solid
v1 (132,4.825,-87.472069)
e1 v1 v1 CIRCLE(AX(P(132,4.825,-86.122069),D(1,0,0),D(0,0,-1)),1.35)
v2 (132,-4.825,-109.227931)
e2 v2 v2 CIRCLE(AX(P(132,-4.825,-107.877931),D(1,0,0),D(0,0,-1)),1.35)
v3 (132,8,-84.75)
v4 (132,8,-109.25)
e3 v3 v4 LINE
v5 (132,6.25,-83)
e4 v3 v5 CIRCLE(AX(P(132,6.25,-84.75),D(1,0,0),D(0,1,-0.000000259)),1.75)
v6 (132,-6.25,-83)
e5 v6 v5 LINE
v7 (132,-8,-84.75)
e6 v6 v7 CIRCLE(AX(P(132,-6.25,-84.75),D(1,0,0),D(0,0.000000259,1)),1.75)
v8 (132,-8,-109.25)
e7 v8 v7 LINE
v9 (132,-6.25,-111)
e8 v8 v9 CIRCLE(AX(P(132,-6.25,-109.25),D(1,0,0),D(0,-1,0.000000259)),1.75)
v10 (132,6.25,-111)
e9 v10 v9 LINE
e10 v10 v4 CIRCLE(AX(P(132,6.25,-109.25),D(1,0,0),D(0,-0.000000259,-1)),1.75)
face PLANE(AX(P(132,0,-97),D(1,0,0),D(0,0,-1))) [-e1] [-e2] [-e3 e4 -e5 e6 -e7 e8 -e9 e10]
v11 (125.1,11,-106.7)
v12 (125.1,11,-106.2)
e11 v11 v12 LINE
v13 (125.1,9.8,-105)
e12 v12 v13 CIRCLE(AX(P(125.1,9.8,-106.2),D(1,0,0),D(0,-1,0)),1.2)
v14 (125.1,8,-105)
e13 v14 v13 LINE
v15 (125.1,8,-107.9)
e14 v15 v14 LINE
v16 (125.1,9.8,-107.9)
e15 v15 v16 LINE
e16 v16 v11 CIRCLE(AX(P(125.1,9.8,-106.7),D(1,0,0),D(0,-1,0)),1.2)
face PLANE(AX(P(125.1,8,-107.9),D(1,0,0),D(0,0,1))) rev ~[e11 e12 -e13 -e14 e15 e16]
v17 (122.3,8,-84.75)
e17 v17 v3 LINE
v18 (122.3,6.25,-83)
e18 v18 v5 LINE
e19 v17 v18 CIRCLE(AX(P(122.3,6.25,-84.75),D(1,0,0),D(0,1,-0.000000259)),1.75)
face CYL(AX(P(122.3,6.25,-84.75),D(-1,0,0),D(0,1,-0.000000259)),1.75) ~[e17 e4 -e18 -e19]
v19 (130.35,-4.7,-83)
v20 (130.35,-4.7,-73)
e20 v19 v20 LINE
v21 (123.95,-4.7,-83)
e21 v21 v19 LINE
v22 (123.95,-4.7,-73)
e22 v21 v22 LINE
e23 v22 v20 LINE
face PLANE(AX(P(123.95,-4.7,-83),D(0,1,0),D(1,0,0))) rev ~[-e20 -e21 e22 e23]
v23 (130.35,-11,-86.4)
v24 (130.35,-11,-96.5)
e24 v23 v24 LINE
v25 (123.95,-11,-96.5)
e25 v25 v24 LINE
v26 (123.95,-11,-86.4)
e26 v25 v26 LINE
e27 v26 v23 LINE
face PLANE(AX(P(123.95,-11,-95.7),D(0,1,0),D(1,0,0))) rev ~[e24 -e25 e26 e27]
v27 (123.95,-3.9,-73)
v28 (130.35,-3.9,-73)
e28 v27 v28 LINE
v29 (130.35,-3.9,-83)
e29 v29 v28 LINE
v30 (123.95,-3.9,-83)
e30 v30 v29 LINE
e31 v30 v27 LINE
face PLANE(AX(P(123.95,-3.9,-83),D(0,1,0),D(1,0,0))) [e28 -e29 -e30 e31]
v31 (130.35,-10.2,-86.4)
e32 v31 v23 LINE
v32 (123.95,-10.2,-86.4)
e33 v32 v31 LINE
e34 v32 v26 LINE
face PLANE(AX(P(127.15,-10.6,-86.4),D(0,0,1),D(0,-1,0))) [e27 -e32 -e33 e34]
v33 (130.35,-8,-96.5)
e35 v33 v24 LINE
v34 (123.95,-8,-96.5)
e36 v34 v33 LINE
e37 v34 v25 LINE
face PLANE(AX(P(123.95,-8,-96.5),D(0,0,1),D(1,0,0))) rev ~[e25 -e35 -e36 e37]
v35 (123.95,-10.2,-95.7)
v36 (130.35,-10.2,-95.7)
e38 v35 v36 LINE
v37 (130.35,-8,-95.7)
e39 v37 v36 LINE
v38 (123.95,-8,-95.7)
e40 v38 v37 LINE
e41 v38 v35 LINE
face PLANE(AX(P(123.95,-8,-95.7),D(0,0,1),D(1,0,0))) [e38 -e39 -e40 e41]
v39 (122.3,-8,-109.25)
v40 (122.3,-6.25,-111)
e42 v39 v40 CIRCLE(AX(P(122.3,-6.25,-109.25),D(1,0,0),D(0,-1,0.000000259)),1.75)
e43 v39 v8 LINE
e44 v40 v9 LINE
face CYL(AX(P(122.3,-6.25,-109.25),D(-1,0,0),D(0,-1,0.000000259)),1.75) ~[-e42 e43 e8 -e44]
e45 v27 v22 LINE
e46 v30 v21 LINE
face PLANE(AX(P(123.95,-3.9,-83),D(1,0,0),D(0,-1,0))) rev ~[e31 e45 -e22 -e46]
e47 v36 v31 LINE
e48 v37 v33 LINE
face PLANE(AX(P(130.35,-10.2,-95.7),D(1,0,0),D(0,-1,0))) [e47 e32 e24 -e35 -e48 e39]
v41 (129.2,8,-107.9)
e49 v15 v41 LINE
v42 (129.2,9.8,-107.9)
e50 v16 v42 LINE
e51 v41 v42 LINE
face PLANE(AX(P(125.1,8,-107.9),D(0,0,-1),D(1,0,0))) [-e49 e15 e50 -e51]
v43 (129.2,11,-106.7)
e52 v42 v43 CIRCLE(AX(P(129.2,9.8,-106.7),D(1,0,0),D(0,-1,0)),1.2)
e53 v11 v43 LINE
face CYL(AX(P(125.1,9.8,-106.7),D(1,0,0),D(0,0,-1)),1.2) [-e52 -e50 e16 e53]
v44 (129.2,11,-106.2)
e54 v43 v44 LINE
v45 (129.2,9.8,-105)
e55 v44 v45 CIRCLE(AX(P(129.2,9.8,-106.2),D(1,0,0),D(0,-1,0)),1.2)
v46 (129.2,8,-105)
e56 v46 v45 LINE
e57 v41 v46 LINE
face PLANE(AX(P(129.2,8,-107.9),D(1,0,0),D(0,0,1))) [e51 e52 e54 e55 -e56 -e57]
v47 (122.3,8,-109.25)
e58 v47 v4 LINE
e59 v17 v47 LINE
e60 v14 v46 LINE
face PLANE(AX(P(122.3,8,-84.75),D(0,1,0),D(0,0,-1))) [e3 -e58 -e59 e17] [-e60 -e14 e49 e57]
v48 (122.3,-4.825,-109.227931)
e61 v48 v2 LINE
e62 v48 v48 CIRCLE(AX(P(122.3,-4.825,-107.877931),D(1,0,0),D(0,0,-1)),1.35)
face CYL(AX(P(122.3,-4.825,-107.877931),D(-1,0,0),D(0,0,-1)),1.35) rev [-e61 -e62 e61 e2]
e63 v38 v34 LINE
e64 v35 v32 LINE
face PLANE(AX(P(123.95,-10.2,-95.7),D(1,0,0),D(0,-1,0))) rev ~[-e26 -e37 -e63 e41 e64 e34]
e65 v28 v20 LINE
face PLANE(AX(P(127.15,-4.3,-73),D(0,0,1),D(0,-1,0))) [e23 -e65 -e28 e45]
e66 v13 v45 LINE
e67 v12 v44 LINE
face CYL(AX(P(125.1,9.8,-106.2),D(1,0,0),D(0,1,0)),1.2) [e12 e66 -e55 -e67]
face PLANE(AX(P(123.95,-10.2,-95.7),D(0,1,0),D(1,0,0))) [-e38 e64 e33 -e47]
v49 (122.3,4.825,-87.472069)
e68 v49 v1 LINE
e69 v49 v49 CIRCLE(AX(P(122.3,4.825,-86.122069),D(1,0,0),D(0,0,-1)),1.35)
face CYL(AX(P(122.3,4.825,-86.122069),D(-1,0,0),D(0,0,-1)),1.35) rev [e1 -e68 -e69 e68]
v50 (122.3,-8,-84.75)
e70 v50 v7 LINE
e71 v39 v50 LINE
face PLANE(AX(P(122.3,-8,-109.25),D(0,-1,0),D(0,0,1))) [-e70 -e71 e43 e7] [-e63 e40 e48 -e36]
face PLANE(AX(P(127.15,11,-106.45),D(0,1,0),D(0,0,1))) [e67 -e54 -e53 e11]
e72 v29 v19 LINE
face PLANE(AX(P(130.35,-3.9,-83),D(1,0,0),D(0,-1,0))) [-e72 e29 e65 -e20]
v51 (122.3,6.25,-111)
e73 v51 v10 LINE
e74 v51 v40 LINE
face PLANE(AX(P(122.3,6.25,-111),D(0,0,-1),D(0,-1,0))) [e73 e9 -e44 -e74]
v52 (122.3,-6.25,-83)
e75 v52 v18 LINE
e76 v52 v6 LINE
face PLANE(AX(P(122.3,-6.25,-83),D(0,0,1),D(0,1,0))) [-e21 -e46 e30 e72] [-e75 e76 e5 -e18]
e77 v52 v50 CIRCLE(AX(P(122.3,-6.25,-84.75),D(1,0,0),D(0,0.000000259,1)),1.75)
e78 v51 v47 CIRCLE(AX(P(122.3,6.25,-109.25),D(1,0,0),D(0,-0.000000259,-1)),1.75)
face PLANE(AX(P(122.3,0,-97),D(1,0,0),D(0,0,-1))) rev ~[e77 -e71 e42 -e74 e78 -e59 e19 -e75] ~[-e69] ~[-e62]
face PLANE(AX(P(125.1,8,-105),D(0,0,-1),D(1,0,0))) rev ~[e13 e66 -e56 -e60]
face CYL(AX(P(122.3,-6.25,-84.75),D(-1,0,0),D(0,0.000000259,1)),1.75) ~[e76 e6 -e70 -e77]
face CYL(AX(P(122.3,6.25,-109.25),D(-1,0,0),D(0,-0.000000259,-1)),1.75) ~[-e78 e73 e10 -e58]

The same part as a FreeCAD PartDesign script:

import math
import FreeCAD as App
import Part
import Sketcher


def edges_at(feature, points):
    """Names of the edges that pass closest to the given points."""
    edges = feature.Shape.Edges
    near = lambda p: min(range(len(edges)), key=lambda i: edges[i].distToShape(Part.Vertex(*p))[0])
    return sorted({f"Edge{near(p) + 1}" for p in points})

doc = App.newDocument("Part")
body = doc.addObject("PartDesign::Body", "Body")

# Sketch on XY plane
sketch1 = body.newObject("Sketcher::SketchObject", "Sketch")
sketch1.AttachmentSupport = (doc.getObject("XY_Plane"), [""])
sketch1.MapMode = "FlatFace"
sketch1.addGeometry(Part.ArcOfCircle(Part.Circle(App.Vector(-12.3, 6.3, 0), App.Vector(0, 0, 1), 1.7), math.radians(90), math.radians(180)), False)
sketch1.addGeometry(Part.LineSegment(App.Vector(-14, 6.2, 0), App.Vector(-14, -6.2, 0)), False)
sketch1.addGeometry(Part.ArcOfCircle(Part.Circle(App.Vector(-12.3, -6.3, 0), App.Vector(0, 0, 1), 1.7), math.radians(180), math.radians(270)), False)
sketch1.addGeometry(Part.LineSegment(App.Vector(-12.2, -8, 0), App.Vector(12.2, -8, 0)), False)
sketch1.addGeometry(Part.ArcOfCircle(Part.Circle(App.Vector(12.3, -6.3, 0), App.Vector(0, 0, 1), 1.7), math.radians(-90), math.radians(0)), False)
sketch1.addGeometry(Part.LineSegment(App.Vector(14, -6.2, 0), App.Vector(14, 6.2, 0)), False)
sketch1.addGeometry(Part.ArcOfCircle(Part.Circle(App.Vector(12.3, 6.3, 0), App.Vector(0, 0, 1), 1.7), math.radians(0), math.radians(90)), False)
sketch1.addGeometry(Part.LineSegment(App.Vector(12.2, 8, 0), App.Vector(-12.2, 8, 0)), False)
sketch1.addGeometry(Part.Circle(App.Vector(10.9, -4.8, 0), App.Vector(0, 0, 1), 1.4), False)
sketch1.addGeometry(Part.Circle(App.Vector(-10.9, 4.8, 0), App.Vector(0, 0, 1), 1.4), False)
sketch1.addConstraint(Sketcher.Constraint("Tangent", 0, 2, 1, 1))
sketch1.addConstraint(Sketcher.Constraint("Tangent", 1, 2, 2, 1))
sketch1.addConstraint(Sketcher.Constraint("Tangent", 2, 2, 3, 1))
sketch1.addConstraint(Sketcher.Constraint("Tangent", 3, 2, 4, 1))
sketch1.addConstraint(Sketcher.Constraint("Tangent", 4, 2, 5, 1))
sketch1.addConstraint(Sketcher.Constraint("Tangent", 5, 2, 6, 1))
sketch1.addConstraint(Sketcher.Constraint("Tangent", 6, 2, 7, 1))
sketch1.addConstraint(Sketcher.Constraint("Tangent", 7, 2, 0, 1))
sketch1.addConstraint(Sketcher.Constraint("Vertical", 1))
sketch1.addConstraint(Sketcher.Constraint("Horizontal", 3))
sketch1.addConstraint(Sketcher.Constraint("Vertical", 5))
sketch1.addConstraint(Sketcher.Constraint("Horizontal", 7))
sketch1.addConstraint(Sketcher.Constraint("Equal", 0, 2))
sketch1.addConstraint(Sketcher.Constraint("Equal", 2, 4))
sketch1.addConstraint(Sketcher.Constraint("Equal", 4, 6))
sketch1.addConstraint(Sketcher.Constraint("Equal", 8, 9))
sketch1.addConstraint(Sketcher.Constraint("Symmetric", 0, 3, 4, 3, -1, 1))
sketch1.addConstraint(Sketcher.Constraint("Symmetric", 8, 3, 9, 3, -1, 1))
sketch1.addConstraint(Sketcher.Constraint("Diameter", 8, 2.7))
sketch1.addConstraint(Sketcher.Constraint("Radius", 0, 1.75))
sketch1.addConstraint(Sketcher.Constraint("DistanceX", 3, 1, 3, 2, 24.5))
sketch1.addConstraint(Sketcher.Constraint("DistanceY", 1, 2, 1, 1, 12.5))
sketch1.addConstraint(Sketcher.Constraint("DistanceY", 8, 3, 9, 3, 9.65))
sketch1.addConstraint(Sketcher.Constraint("DistanceX", -1, 1, 8, 3, 10.877931))
pad1 = body.newObject("PartDesign::Pad", "Pad")
pad1.Profile = sketch1
pad1.Length = 9.7

# Sketch on XZ plane
sketch2 = body.newObject("Sketcher::SketchObject", "Sketch001")
sketch2.AttachmentSupport = (doc.getObject("XZ_Plane"), [""])
sketch2.MapMode = "FlatFace"
sketch2.AttachmentOffset = App.Placement(App.Vector(0, 0, -8), App.Rotation())
sketch2.addGeometry(Part.LineSegment(App.Vector(10.9, 6.9, 0), App.Vector(10.9, 2.8, 0)), False)
sketch2.addGeometry(Part.LineSegment(App.Vector(10.9, 2.8, 0), App.Vector(8, 2.8, 0)), False)
sketch2.addGeometry(Part.LineSegment(App.Vector(8, 2.8, 0), App.Vector(8, 6.9, 0)), False)
sketch2.addGeometry(Part.LineSegment(App.Vector(8, 6.9, 0), App.Vector(10.9, 6.9, 0)), False)
sketch2.addConstraint(Sketcher.Constraint("Coincident", 0, 2, 1, 1))
sketch2.addConstraint(Sketcher.Constraint("Coincident", 1, 2, 2, 1))
sketch2.addConstraint(Sketcher.Constraint("Coincident", 2, 2, 3, 1))
sketch2.addConstraint(Sketcher.Constraint("Coincident", 3, 2, 0, 1))
sketch2.addConstraint(Sketcher.Constraint("Vertical", 0))
sketch2.addConstraint(Sketcher.Constraint("Horizontal", 1))
sketch2.addConstraint(Sketcher.Constraint("Vertical", 2))
sketch2.addConstraint(Sketcher.Constraint("Horizontal", 3))
sketch2.addConstraint(Sketcher.Constraint("DistanceX", 1, 2, 1, 1, 2.9))
sketch2.addConstraint(Sketcher.Constraint("DistanceY", 0, 2, 0, 1, 4.1))
sketch2.addConstraint(Sketcher.Constraint("DistanceX", -1, 1, 1, 2, 8.0))
sketch2.addConstraint(Sketcher.Constraint("DistanceY", -1, 1, 0, 2, 2.8))
pad2 = body.newObject("PartDesign::Pad", "Pad001")
pad2.Profile = sketch2
pad2.Length = 3
pad2.Reversed = True

# Sketch on YZ plane
sketch3 = body.newObject("Sketcher::SketchObject", "Sketch002")
sketch3.AttachmentSupport = (doc.getObject("YZ_Plane"), [""])
sketch3.MapMode = "FlatFace"
sketch3.AttachmentOffset = App.Placement(App.Vector(0, 0, -14), App.Rotation())
sketch3.addGeometry(Part.LineSegment(App.Vector(-3.9, 8.1, 0), App.Vector(-3.9, 1.6, 0)), False)
sketch3.addGeometry(Part.LineSegment(App.Vector(-3.9, 1.6, 0), App.Vector(-4.7, 1.6, 0)), False)
sketch3.addGeometry(Part.LineSegment(App.Vector(-4.7, 1.6, 0), App.Vector(-4.7, 8.1, 0)), False)
sketch3.addGeometry(Part.LineSegment(App.Vector(-4.7, 8.1, 0), App.Vector(-3.9, 8.1, 0)), False)
sketch3.addConstraint(Sketcher.Constraint("Coincident", 0, 2, 1, 1))
sketch3.addConstraint(Sketcher.Constraint("Coincident", 1, 2, 2, 1))
sketch3.addConstraint(Sketcher.Constraint("Coincident", 2, 2, 3, 1))
sketch3.addConstraint(Sketcher.Constraint("Coincident", 3, 2, 0, 1))
sketch3.addConstraint(Sketcher.Constraint("Vertical", 0))
sketch3.addConstraint(Sketcher.Constraint("Horizontal", 1))
sketch3.addConstraint(Sketcher.Constraint("Vertical", 2))
sketch3.addConstraint(Sketcher.Constraint("Horizontal", 3))
sketch3.addConstraint(Sketcher.Constraint("DistanceX", 1, 2, 1, 1, 0.8))
sketch3.addConstraint(Sketcher.Constraint("DistanceY", 0, 2, 0, 1, 6.4))
sketch3.addConstraint(Sketcher.Constraint("DistanceX", 0, 2, -1, 1, 3.9))
sketch3.addConstraint(Sketcher.Constraint("DistanceY", -1, 1, 0, 2, 1.65))
pad3 = body.newObject("PartDesign::Pad", "Pad002")
pad3.Profile = sketch3
pad3.Length = 10
pad3.Reversed = True

# Sketch on XZ plane
sketch4 = body.newObject("Sketcher::SketchObject", "Sketch003")
sketch4.AttachmentSupport = (doc.getObject("XZ_Plane"), [""])
sketch4.MapMode = "FlatFace"
sketch4.AttachmentOffset = App.Placement(App.Vector(0, 0, 8), App.Rotation())
sketch4.addGeometry(Part.LineSegment(App.Vector(-1.3, 8.1, 0), App.Vector(-1.3, 1.6, 0)), False)
sketch4.addGeometry(Part.LineSegment(App.Vector(-1.3, 1.6, 0), App.Vector(-0.5, 1.6, 0)), False)
sketch4.addGeometry(Part.LineSegment(App.Vector(-0.5, 1.6, 0), App.Vector(-0.5, 8.1, 0)), False)
sketch4.addGeometry(Part.LineSegment(App.Vector(-0.5, 8.1, 0), App.Vector(-1.3, 8.1, 0)), False)
sketch4.addConstraint(Sketcher.Constraint("Coincident", 0, 2, 1, 1))
sketch4.addConstraint(Sketcher.Constraint("Coincident", 1, 2, 2, 1))
sketch4.addConstraint(Sketcher.Constraint("Coincident", 2, 2, 3, 1))
sketch4.addConstraint(Sketcher.Constraint("Coincident", 3, 2, 0, 1))
sketch4.addConstraint(Sketcher.Constraint("Vertical", 0))
sketch4.addConstraint(Sketcher.Constraint("Horizontal", 1))
sketch4.addConstraint(Sketcher.Constraint("Vertical", 2))
sketch4.addConstraint(Sketcher.Constraint("Horizontal", 3))
sketch4.addConstraint(Sketcher.Constraint("DistanceX", 1, 1, 1, 2, 0.8))
sketch4.addConstraint(Sketcher.Constraint("DistanceY", 0, 2, 0, 1, 6.4))
sketch4.addConstraint(Sketcher.Constraint("DistanceX", 0, 2, -1, 1, 1.3))
sketch4.addConstraint(Sketcher.Constraint("DistanceY", -1, 1, 0, 2, 1.65))
pad4 = body.newObject("PartDesign::Pad", "Pad003")
pad4.Profile = sketch4
pad4.Length = 3

# Sketch on YZ plane
sketch5 = body.newObject("Sketcher::SketchObject", "Sketch004")
sketch5.AttachmentSupport = (doc.getObject("YZ_Plane"), [""])
sketch5.MapMode = "FlatFace"
sketch5.AttachmentOffset = App.Placement(App.Vector(0, 0, -1.3), App.Rotation())
sketch5.addGeometry(Part.LineSegment(App.Vector(-10.2, 8.1, 0), App.Vector(-10.2, 1.6, 0)), False)
sketch5.addGeometry(Part.LineSegment(App.Vector(-10.2, 1.6, 0), App.Vector(-11, 1.6, 0)), False)
sketch5.addGeometry(Part.LineSegment(App.Vector(-11, 1.6, 0), App.Vector(-11, 8.1, 0)), False)
sketch5.addGeometry(Part.LineSegment(App.Vector(-11, 8.1, 0), App.Vector(-10.2, 8.1, 0)), False)
sketch5.addConstraint(Sketcher.Constraint("Coincident", 0, 2, 1, 1))
sketch5.addConstraint(Sketcher.Constraint("Coincident", 1, 2, 2, 1))
sketch5.addConstraint(Sketcher.Constraint("Coincident", 2, 2, 3, 1))
sketch5.addConstraint(Sketcher.Constraint("Coincident", 3, 2, 0, 1))
sketch5.addConstraint(Sketcher.Constraint("Vertical", 0))
sketch5.addConstraint(Sketcher.Constraint("Horizontal", 1))
sketch5.addConstraint(Sketcher.Constraint("Vertical", 2))
sketch5.addConstraint(Sketcher.Constraint("Horizontal", 3))
sketch5.addConstraint(Sketcher.Constraint("DistanceX", 1, 2, 1, 1, 0.8))
sketch5.addConstraint(Sketcher.Constraint("DistanceY", 0, 2, 0, 1, 6.4))
sketch5.addConstraint(Sketcher.Constraint("DistanceX", 1, 2, -1, 1, 11.0))
sketch5.addConstraint(Sketcher.Constraint("DistanceY", -1, 1, 0, 2, 1.65))
pad5 = body.newObject("PartDesign::Pad", "Pad004")
pad5.Profile = sketch5
pad5.Length = 9.3
pad5.Reversed = True
doc.recompute()

fillet = body.newObject("PartDesign::Fillet", "Fillet")
fillet.Base = (pad5, edges_at(pad5, [(10.9, 11, 4.85), (8, 11, 4.85)]))
fillet.Radius = 1.2
body2 = doc.addObject("PartDesign::Body", "Body001")
doc.recompute()

body.Placement = App.Placement(App.Vector(122.3, 0, -97), App.Rotation(App.Vector(0, 1, 0), 90))
boolean = body2.newObject("PartDesign::Boolean", "Boolean")
boolean.Type = "Fuse"
boolean.addObjects([body])

doc.recompute()
